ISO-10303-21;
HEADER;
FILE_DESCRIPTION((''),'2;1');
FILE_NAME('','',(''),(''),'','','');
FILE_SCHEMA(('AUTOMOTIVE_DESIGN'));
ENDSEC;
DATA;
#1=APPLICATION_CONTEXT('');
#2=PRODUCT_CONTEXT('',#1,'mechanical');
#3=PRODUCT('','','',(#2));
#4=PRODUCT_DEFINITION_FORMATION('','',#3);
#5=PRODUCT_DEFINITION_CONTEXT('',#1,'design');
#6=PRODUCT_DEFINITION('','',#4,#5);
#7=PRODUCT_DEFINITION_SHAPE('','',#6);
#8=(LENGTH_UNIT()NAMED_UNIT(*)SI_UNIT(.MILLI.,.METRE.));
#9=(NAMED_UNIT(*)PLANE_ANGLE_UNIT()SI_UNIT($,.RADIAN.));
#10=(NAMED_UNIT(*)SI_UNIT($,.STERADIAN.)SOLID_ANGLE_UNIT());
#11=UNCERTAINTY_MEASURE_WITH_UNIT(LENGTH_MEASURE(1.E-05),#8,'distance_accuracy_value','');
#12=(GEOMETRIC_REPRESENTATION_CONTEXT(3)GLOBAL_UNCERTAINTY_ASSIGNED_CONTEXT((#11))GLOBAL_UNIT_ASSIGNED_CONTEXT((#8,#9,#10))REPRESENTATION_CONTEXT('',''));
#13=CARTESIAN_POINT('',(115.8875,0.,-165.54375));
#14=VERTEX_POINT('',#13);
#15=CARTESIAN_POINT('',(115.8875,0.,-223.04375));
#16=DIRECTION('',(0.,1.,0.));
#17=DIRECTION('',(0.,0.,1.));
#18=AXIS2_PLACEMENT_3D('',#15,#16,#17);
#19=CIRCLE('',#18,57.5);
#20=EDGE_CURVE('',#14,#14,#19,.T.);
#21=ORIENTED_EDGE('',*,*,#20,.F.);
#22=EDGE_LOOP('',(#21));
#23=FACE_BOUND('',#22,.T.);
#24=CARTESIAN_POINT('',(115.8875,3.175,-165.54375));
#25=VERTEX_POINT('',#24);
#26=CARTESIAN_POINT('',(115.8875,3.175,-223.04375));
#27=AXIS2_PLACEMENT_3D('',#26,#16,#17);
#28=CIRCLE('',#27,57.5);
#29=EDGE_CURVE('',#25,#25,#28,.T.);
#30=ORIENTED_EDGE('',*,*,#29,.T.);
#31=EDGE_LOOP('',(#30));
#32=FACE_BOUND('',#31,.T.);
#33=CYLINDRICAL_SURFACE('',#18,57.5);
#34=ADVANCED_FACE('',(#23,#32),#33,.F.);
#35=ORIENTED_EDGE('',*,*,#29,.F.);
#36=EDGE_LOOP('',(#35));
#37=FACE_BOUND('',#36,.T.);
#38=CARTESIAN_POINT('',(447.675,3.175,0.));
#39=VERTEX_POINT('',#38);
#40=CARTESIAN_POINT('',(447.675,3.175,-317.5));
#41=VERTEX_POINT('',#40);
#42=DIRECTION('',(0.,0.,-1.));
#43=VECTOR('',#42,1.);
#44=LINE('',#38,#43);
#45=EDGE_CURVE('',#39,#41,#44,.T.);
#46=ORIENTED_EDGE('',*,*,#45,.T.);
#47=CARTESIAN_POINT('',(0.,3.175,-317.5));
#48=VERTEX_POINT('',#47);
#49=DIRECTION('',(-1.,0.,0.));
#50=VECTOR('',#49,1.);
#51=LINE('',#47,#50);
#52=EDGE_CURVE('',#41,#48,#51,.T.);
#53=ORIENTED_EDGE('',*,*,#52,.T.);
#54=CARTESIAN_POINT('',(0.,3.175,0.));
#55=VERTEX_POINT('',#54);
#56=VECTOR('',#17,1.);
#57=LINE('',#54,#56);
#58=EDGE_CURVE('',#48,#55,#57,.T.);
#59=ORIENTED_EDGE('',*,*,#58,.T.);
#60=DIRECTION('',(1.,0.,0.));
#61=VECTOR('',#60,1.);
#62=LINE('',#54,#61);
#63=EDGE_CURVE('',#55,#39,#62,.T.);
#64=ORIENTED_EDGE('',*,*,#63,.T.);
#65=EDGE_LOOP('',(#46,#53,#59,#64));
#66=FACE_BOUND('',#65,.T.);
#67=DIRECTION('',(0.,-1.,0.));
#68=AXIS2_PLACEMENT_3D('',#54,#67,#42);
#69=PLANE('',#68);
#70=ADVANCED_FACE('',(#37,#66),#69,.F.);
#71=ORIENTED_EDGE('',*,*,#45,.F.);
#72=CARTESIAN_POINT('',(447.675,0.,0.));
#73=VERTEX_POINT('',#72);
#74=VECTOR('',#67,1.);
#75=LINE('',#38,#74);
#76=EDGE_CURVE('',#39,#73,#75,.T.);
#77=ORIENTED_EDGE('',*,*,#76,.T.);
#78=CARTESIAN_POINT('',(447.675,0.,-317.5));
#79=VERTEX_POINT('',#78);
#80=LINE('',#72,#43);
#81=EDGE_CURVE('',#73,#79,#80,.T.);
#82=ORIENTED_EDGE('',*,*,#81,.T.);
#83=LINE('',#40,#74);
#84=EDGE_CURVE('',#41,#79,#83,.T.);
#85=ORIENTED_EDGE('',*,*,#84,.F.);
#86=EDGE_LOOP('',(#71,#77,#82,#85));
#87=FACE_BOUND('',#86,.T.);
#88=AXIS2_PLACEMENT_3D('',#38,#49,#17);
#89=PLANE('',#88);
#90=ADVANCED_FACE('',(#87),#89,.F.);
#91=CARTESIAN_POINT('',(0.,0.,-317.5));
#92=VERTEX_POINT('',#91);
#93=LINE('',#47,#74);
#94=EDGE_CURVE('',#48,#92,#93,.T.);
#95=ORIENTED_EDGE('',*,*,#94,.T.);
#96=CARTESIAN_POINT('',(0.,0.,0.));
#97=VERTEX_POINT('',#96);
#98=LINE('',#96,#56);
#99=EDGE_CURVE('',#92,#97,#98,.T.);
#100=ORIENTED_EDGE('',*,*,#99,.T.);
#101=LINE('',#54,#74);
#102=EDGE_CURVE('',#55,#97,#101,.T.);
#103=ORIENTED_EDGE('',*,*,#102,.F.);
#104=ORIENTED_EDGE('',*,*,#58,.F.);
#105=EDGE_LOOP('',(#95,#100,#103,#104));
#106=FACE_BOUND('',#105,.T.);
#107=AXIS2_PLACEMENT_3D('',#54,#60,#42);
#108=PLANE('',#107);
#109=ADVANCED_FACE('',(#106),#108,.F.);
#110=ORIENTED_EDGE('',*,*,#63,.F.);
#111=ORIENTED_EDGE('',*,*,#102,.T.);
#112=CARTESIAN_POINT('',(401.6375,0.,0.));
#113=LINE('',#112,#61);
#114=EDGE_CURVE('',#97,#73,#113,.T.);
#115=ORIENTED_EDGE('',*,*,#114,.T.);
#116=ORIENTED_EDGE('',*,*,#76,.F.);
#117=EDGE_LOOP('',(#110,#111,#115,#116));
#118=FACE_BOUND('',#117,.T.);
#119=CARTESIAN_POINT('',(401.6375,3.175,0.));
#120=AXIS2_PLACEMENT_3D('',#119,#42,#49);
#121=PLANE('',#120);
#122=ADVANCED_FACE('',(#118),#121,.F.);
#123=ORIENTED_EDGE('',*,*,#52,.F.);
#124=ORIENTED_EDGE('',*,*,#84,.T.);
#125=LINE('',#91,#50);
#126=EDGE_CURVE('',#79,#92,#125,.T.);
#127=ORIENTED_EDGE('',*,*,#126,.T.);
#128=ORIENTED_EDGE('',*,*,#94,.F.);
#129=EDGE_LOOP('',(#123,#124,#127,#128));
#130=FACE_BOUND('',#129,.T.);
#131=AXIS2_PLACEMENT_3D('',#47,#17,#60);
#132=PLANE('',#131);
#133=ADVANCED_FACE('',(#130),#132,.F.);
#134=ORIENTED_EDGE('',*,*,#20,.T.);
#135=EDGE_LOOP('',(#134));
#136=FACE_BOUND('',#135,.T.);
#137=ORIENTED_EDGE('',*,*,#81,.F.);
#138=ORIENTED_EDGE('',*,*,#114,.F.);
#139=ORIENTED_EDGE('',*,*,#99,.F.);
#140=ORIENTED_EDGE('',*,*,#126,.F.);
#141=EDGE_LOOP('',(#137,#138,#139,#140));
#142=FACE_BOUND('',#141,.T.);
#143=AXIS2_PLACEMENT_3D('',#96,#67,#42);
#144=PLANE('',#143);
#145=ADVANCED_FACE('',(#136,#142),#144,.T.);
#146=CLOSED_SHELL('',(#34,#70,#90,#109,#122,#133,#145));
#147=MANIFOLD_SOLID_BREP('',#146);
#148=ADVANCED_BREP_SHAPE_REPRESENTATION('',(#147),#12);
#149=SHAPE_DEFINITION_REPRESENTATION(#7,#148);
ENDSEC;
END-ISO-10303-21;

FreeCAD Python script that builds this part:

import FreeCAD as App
import Part
import Sketcher
Q = App.Units.Quantity


def add_polygon(sketch, points):
    """Adds a closed chain of lines whose ends are joined by coincident constraints."""
    first, n = sketch.GeometryCount, len(points)
    for a, b in zip(points, points[1:] + points[:1]):
        sketch.addGeometry(Part.LineSegment(App.Vector(*a, 0), App.Vector(*b, 0)), False)
    for i in range(n):
        sketch.addConstraint(Sketcher.Constraint("Coincident", first + i, 2, first + (i + 1) % n, 1))

doc = App.newDocument("Part")
params = doc.addObject("Spreadsheet::Sheet", "Params")
for row, (alias, value) in enumerate([
    ("sketch1_height", "12.5 in"),
    ("sketch1_width", "17.625 in"),
    ("pad1_length", "0.125 in"),
], start=1):
    params.set(f"A{row}", alias)
    params.set(f"B{row}", "=" + value)
    params.setAlias(f"B{row}", alias)

body = doc.addObject("PartDesign::Body", "Body")

# Sketch on XZ plane
sketch1 = body.newObject("Sketcher::SketchObject", "Sketch")
sketch1.AttachmentSupport = (doc.getObject("XZ_Plane"), [""])
sketch1.MapMode = "FlatFace"
add_polygon(sketch1, [(448, 0), (448, -318), (0, -318), (0, 0)])  # lines 0-3
sketch1.addConstraint([
    Sketcher.Constraint("Vertical", 0),
    Sketcher.Constraint("Horizontal", 1),
    Sketcher.Constraint("Vertical", 2),
    Sketcher.Constraint("Horizontal", 3),
    Sketcher.Constraint("Coincident", 2, 2, -1, 1),
    Sketcher.Constraint("DistanceY", 0, 2, 0, 1, Q("12.5 in")),
    Sketcher.Constraint("DistanceX", 1, 2, 1, 1, Q("17.625 in")),
])
sketch1.setExpression("Constraints[9]", "Params.sketch1_height")
sketch1.setExpression("Constraints[10]", "Params.sketch1_width")
pad1 = body.newObject("PartDesign::Pad", "Pad")
pad1.Profile = sketch1
pad1.setExpression("Length", "Params.pad1_length")
pad1.Reversed = True

# Sketch on XZ plane
sketch2 = body.newObject("Sketcher::SketchObject", "Sketch001")
sketch2.AttachmentSupport = (doc.getObject("XZ_Plane"), [""])
sketch2.MapMode = "FlatFace"
sketch2.AttachmentOffset = App.Placement(App.Vector(0, 0, -0.125 * 25.4), App.Rotation())
sketch2.addGeometry(Part.Circle(App.Vector(116, -223, 0), App.Vector(0, 0, 1), 58), False)
sketch2.addConstraint([
    Sketcher.Constraint("Diameter", 0, Q("115 mm")),
    Sketcher.Constraint("DistanceX", -1, 1, 0, 3, Q("4.5625 in")),
    Sketcher.Constraint("DistanceY", 0, 3, -1, 1, Q("8.78125 in")),
])
pocket1 = body.newObject("PartDesign::Pocket", "Pocket")
pocket1.Profile = sketch2
pocket1.Type = "ThroughAll"
pocket1.Reversed = True

doc.recompute()
